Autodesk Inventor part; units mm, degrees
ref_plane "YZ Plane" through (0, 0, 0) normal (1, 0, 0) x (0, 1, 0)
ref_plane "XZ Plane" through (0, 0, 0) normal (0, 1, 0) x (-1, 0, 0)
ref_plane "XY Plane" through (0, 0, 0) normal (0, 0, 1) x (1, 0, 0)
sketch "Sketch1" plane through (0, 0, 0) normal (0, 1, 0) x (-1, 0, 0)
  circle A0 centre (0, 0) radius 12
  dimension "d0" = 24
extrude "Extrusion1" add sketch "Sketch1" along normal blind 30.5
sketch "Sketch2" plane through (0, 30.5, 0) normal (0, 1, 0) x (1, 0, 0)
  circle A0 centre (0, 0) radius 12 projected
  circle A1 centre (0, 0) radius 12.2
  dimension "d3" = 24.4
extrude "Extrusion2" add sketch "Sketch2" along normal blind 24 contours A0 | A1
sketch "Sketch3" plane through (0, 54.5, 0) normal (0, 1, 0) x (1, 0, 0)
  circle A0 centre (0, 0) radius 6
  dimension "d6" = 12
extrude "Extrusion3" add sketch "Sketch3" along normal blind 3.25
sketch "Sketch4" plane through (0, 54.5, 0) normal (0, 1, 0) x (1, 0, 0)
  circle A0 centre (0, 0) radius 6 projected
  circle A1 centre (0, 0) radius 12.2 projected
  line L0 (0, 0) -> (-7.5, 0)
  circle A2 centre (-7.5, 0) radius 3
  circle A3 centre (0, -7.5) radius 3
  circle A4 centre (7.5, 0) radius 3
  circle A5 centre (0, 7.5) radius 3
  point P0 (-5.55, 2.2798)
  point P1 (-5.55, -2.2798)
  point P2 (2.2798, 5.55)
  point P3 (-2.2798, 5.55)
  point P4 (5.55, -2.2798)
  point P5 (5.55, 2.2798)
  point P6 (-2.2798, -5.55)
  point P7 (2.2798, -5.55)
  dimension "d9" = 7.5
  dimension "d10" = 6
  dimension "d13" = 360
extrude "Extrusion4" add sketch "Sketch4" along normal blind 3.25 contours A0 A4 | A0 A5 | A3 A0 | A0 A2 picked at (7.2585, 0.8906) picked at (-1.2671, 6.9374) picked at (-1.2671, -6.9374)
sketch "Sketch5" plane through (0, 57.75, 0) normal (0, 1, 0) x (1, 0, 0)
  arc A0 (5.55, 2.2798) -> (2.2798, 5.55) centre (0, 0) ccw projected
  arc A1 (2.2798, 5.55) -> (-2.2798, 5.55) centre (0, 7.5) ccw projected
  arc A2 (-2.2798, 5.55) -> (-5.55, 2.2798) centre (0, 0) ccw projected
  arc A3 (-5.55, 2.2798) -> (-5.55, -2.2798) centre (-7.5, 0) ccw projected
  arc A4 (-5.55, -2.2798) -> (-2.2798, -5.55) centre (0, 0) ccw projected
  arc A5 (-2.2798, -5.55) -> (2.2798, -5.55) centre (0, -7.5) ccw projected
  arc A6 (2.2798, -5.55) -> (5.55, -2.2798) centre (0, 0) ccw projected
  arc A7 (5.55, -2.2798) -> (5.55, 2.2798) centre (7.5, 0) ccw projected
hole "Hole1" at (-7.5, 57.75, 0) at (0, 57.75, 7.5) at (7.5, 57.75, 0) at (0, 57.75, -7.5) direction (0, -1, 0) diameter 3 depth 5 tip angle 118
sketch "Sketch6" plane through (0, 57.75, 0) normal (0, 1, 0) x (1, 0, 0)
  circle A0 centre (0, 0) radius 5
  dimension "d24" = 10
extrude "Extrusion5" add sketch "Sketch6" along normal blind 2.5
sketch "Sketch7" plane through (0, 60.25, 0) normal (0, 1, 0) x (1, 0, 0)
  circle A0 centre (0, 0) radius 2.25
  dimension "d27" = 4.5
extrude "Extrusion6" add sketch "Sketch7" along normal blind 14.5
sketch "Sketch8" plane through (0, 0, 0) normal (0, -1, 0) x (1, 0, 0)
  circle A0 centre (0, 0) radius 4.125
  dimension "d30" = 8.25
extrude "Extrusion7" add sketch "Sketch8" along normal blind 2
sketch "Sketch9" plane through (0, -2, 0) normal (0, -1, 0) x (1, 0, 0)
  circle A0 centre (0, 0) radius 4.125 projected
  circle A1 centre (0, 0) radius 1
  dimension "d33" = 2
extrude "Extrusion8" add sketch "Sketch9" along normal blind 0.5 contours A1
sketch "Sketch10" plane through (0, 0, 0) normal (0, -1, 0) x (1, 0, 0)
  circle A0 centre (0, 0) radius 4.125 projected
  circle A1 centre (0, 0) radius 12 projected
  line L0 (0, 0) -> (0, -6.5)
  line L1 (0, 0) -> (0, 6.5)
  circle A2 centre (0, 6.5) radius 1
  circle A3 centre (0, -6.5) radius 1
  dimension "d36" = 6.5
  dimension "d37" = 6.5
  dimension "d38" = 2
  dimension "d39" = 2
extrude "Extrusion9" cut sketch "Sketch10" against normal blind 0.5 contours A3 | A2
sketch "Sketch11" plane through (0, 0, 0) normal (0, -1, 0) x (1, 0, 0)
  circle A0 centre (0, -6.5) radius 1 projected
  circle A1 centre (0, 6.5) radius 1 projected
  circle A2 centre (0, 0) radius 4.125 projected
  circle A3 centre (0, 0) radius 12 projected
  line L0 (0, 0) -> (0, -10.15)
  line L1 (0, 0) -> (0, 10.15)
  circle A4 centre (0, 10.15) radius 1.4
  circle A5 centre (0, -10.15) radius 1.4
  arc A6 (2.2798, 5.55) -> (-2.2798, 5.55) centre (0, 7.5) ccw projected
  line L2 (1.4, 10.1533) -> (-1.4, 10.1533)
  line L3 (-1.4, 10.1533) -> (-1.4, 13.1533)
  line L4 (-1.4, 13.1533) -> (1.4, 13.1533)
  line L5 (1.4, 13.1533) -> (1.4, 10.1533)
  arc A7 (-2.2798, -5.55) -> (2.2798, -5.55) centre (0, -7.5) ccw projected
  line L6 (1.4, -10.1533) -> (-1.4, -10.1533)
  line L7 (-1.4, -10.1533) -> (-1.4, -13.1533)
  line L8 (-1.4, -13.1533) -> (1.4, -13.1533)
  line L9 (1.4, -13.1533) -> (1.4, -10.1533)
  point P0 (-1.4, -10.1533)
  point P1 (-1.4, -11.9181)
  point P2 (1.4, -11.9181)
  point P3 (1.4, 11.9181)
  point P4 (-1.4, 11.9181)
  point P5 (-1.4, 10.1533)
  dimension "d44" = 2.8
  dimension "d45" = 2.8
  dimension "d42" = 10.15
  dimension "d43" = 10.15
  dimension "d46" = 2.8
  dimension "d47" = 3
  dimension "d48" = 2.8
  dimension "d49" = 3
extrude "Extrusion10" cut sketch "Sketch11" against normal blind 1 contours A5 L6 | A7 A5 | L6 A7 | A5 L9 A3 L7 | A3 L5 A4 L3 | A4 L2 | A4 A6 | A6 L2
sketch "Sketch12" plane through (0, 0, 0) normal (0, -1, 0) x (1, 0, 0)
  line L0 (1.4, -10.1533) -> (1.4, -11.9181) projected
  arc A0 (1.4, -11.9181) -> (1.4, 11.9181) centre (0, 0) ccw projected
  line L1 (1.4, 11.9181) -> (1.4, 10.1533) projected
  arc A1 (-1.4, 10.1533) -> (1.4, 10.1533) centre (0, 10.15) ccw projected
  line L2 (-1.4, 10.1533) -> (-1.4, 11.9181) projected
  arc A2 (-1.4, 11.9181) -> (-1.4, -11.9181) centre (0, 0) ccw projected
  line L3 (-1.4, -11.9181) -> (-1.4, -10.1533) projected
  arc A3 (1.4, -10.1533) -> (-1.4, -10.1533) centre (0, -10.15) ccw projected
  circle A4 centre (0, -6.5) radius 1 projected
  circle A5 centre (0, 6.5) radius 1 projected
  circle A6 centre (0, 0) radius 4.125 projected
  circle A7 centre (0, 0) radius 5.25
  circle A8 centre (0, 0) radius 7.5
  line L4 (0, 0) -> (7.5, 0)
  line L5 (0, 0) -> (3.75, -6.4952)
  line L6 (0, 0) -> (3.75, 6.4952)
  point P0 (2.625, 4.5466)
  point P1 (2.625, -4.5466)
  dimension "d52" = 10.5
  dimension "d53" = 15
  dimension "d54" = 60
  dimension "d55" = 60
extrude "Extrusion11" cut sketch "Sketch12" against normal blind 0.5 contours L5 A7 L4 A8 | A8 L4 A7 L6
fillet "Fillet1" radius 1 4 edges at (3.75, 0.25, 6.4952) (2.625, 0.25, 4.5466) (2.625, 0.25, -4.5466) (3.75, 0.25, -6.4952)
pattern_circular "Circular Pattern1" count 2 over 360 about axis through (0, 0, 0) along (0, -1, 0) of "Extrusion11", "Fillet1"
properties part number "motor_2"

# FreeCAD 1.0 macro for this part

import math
import FreeCAD as App
import Part
import Sketcher

V = App.Vector
Q = App.Units.Quantity


def edges_at(feature, points):
    """Names of the edges that pass closest to the given points."""
    edges = feature.Shape.Edges
    near = lambda p: min(range(len(edges)), key=lambda i: edges[i].distToShape(Part.Vertex(*p))[0])
    return sorted({f"Edge{near(p) + 1}" for p in points})

doc = App.newDocument("Part")
body = doc.addObject("PartDesign::Body", "Body")

# Sketch on XZ plane
sketch1 = body.newObject("Sketcher::SketchObject", "Sketch")
sketch1.AttachmentSupport = (doc.getObject("XZ_Plane"), [""])
sketch1.MapMode = "FlatFace"
sketch1.addGeometry(Part.Circle(V(0, 0, 0), V(0, 0, 1), 12), False)
sketch1.addConstraint([
    Sketcher.Constraint("Coincident", 0, 3, -1, 1),
    Sketcher.Constraint("Diameter", 0, 24.0),
])
pad1 = body.newObject("PartDesign::Pad", "Pad")
pad1.Profile = sketch1
pad1.Length = 30.5
pad1.Reversed = True

# Sketch on XZ plane
sketch2 = body.newObject("Sketcher::SketchObject", "Sketch001")
sketch2.AttachmentSupport = (doc.getObject("XZ_Plane"), [""])
sketch2.MapMode = "FlatFace"
sketch2.AttachmentOffset = App.Placement(V(0, 0, -30.5), App.Rotation())
sketch2.addGeometry(Part.Circle(V(0, 0, 0), V(0, 0, 1), 12), False)
sketch2.addConstraint([
    Sketcher.Constraint("Coincident", 0, 3, -1, 1),
    Sketcher.Constraint("Diameter", 0, 24.4),
])
pad2 = body.newObject("PartDesign::Pad", "Pad001")
pad2.Profile = sketch2
pad2.Length = 24
pad2.Reversed = True

# Sketch on XZ plane
sketch3 = body.newObject("Sketcher::SketchObject", "Sketch002")
sketch3.AttachmentSupport = (doc.getObject("XZ_Plane"), [""])
sketch3.MapMode = "FlatFace"
sketch3.AttachmentOffset = App.Placement(V(0, 0, -54.5), App.Rotation())
sketch3.addGeometry(Part.Circle(V(0, 0, 0), V(0, 0, 1), 6), False)
sketch3.addConstraint([
    Sketcher.Constraint("Coincident", 0, 3, -1, 1),
    Sketcher.Constraint("Diameter", 0, 12.0),
])
pad3 = body.newObject("PartDesign::Pad", "Pad002")
pad3.Profile = sketch3
pad3.Length = 3.25
pad3.Reversed = True

# Sketch on XZ plane
sketch4 = body.newObject("Sketcher::SketchObject", "Sketch003")
sketch4.AttachmentSupport = (doc.getObject("XZ_Plane"), [""])
sketch4.MapMode = "FlatFace"
sketch4.AttachmentOffset = App.Placement(V(0, 0, -54.5), App.Rotation())
sketch4.addGeometry([
    Part.ArcOfCircle(Part.Circle(V(0, 0, 0), V(0, 0, 1), 6), math.radians(-22), math.radians(22)),  # 0
    Part.ArcOfCircle(Part.Circle(V(7.5, 0, 0), V(0, 0, 1), 3), math.radians(-131), math.radians(131)),  # 1
    Part.ArcOfCircle(Part.Circle(V(0, 0, 0), V(0, 0, 1), 6), math.radians(-112), math.radians(-68)),  # 2
    Part.ArcOfCircle(Part.Circle(V(0, -7.5, 0), V(0, 0, 1), 3), math.radians(139), math.radians(401)),  # 3
    Part.ArcOfCircle(Part.Circle(V(0, 7.5, 0), V(0, 0, 1), 3), math.radians(-41), math.radians(221)),  # 4
    Part.ArcOfCircle(Part.Circle(V(0, 0, 0), V(0, 0, 1), 6), math.radians(68), math.radians(112)),  # 5
    Part.ArcOfCircle(Part.Circle(V(0, 0, 0), V(0, 0, 1), 6), math.radians(158), math.radians(202)),  # 6
    Part.ArcOfCircle(Part.Circle(V(-7.5, 0, 0), V(0, 0, 1), 3), math.radians(49), math.radians(311)),  # 7
], False)
sketch4.addConstraint([
    Sketcher.Constraint("Coincident", 0, 1, 1, 1),
    Sketcher.Constraint("Coincident", 1, 2, 0, 2),
    Sketcher.Constraint("Coincident", 2, 1, 3, 1),
    Sketcher.Constraint("Coincident", 3, 2, 2, 2),
    Sketcher.Constraint("Coincident", 4, 1, 5, 1),
    Sketcher.Constraint("Coincident", 5, 2, 4, 2),
    Sketcher.Constraint("Coincident", 6, 1, 7, 1),
    Sketcher.Constraint("Coincident", 7, 2, 6, 2),
    Sketcher.Constraint("Coincident", 0, 3, -1, 1),
    Sketcher.Constraint("Coincident", 2, 3, -1, 1),
    Sketcher.Constraint("Coincident", 5, 3, -1, 1),
    Sketcher.Constraint("Coincident", 6, 3, -1, 1),
    Sketcher.Constraint("Equal", 0, 2),
    Sketcher.Constraint("Equal", 1, 3),
    Sketcher.Constraint("Equal", 3, 4),
    Sketcher.Constraint("Equal", 2, 5),
    Sketcher.Constraint("Equal", 5, 6),
    Sketcher.Constraint("Equal", 4, 7),
    Sketcher.Constraint("Symmetric", 3, 3, 4, 3, -1, 1),
    Sketcher.Constraint("Symmetric", 1, 3, 7, 3, -1, 1),
    Sketcher.Constraint("PointOnObject", 1, 3, -1),
    Sketcher.Constraint("PointOnObject", 3, 3, -2),
    Sketcher.Constraint("Radius", 0, 6.0),
    Sketcher.Constraint("Radius", 1, 3.0),
    Sketcher.Constraint("DistanceX", -1, 1, 1, 3, 7.5),
    Sketcher.Constraint("DistanceY", 3, 3, -1, 1, 7.5),
])
pad4 = body.newObject("PartDesign::Pad", "Pad003")
pad4.Profile = sketch4
pad4.Length = 3.25
pad4.Reversed = True

# Sketch on XZ plane
sketch5 = body.newObject("Sketcher::SketchObject", "Sketch004")
sketch5.AttachmentSupport = (doc.getObject("XZ_Plane"), [""])
sketch5.MapMode = "FlatFace"
sketch5.AttachmentOffset = App.Placement(V(0, 0, -57.75), App.Rotation())
sketch5.addGeometry([
    Part.Circle(V(-7.5, 0, 0), V(0, 0, 1), 1.5),
    Part.Circle(V(0, 7.5, 0), V(0, 0, 1), 1.5),
    Part.Circle(V(7.5, 0, 0), V(0, 0, 1), 1.5),
    Part.Circle(V(0, -7.5, 0), V(0, 0, 1), 1.5),
], False)
sketch5.addConstraint([
    Sketcher.Constraint("Equal", 0, 1),
    Sketcher.Constraint("Equal", 1, 2),
    Sketcher.Constraint("Equal", 2, 3),
    Sketcher.Constraint("Symmetric", 0, 3, 2, 3, -1, 1),
    Sketcher.Constraint("Symmetric", 1, 3, 3, 3, -1, 1),
    Sketcher.Constraint("PointOnObject", 0, 3, -1),
    Sketcher.Constraint("PointOnObject", 1, 3, -2),
    Sketcher.Constraint("Diameter", 0, 3.0),
    Sketcher.Constraint("DistanceX", 0, 3, 2, 3, 15.0),
    Sketcher.Constraint("DistanceY", 3, 3, 1, 3, 15.0),
])
doc.recompute()
hole = body.newObject("PartDesign::Hole", "Hole")
hole.Profile = sketch5
hole.ThreadType = "None"
hole.Diameter = 3
hole.DepthType = "Dimension"
hole.Depth = 5
hole.DrillPoint = "Angled"
hole.DrillPointAngle = 118
hole.Reversed = True

# Sketch on XZ plane
sketch6 = body.newObject("Sketcher::SketchObject", "Sketch005")
sketch6.AttachmentSupport = (doc.getObject("XZ_Plane"), [""])
sketch6.MapMode = "FlatFace"
sketch6.AttachmentOffset = App.Placement(V(0, 0, -57.75), App.Rotation())
sketch6.addGeometry(Part.Circle(V(0, 0, 0), V(0, 0, 1), 5), False)
sketch6.addConstraint([
    Sketcher.Constraint("Coincident", 0, 3, -1, 1),
    Sketcher.Constraint("Diameter", 0, 10.0),
])
pad5 = body.newObject("PartDesign::Pad", "Pad004")
pad5.Profile = sketch6
pad5.Length = 2.5
pad5.Reversed = True

# Sketch on XZ plane
sketch7 = body.newObject("Sketcher::SketchObject", "Sketch006")
sketch7.AttachmentSupport = (doc.getObject("XZ_Plane"), [""])
sketch7.MapMode = "FlatFace"
sketch7.AttachmentOffset = App.Placement(V(0, 0, -60.25), App.Rotation())
sketch7.addGeometry(Part.Circle(V(0, 0, 0), V(0, 0, 1), 2.2), False)
sketch7.addConstraint([
    Sketcher.Constraint("Coincident", 0, 3, -1, 1),
    Sketcher.Constraint("Diameter", 0, 4.5),
])
pad6 = body.newObject("PartDesign::Pad", "Pad005")
pad6.Profile = sketch7
pad6.Length = 14.5
pad6.Reversed = True

# Sketch on XZ plane
sketch8 = body.newObject("Sketcher::SketchObject", "Sketch007")
sketch8.AttachmentSupport = (doc.getObject("XZ_Plane"), [""])
sketch8.MapMode = "FlatFace"
sketch8.addGeometry(Part.Circle(V(0, 0, 0), V(0, 0, 1), 4.1), False)
sketch8.addConstraint([
    Sketcher.Constraint("Coincident", 0, 3, -1, 1),
    Sketcher.Constraint("Diameter", 0, 8.25),
])
pad7 = body.newObject("PartDesign::Pad", "Pad006")
pad7.Profile = sketch8
pad7.Length = 2

# Sketch on XZ plane
sketch9 = body.newObject("Sketcher::SketchObject", "Sketch008")
sketch9.AttachmentSupport = (doc.getObject("XZ_Plane"), [""])
sketch9.MapMode = "FlatFace"
sketch9.AttachmentOffset = App.Placement(V(0, 0, 2), App.Rotation())
sketch9.addGeometry(Part.Circle(V(0, 0, 0), V(0, 0, 1), 1), False)
sketch9.addConstraint([
    Sketcher.Constraint("Coincident", 0, 3, -1, 1),
    Sketcher.Constraint("Diameter", 0, 2.0),
])
pad8 = body.newObject("PartDesign::Pad", "Pad007")
pad8.Profile = sketch9
pad8.Length = 0.5

# Sketch on XZ plane
sketch10 = body.newObject("Sketcher::SketchObject", "Sketch009")
sketch10.AttachmentSupport = (doc.getObject("XZ_Plane"), [""])
sketch10.MapMode = "FlatFace"
sketch10.addGeometry([
    Part.Circle(V(0, -6.5, 0), V(0, 0, 1), 1),
    Part.Circle(V(0, 6.5, 0), V(0, 0, 1), 1),
], False)
sketch10.addConstraint([
    Sketcher.Constraint("Equal", 0, 1),
    Sketcher.Constraint("Symmetric", 0, 3, 1, 3, -1, 1),
    Sketcher.Constraint("PointOnObject", 0, 3, -2),
    Sketcher.Constraint("Diameter", 0, 2.0),
    Sketcher.Constraint("DistanceY", 0, 3, -1, 1, 6.5),
])
pocket1 = body.newObject("PartDesign::Pocket", "Pocket")
pocket1.Profile = sketch10
pocket1.Length = 0.5

# Sketch on XZ plane
sketch11 = body.newObject("Sketcher::SketchObject", "Sketch010")
sketch11.AttachmentSupport = (doc.getObject("XZ_Plane"), [""])
sketch11.MapMode = "FlatFace"
sketch11.addGeometry([
    Part.LineSegment(V(-1.4, -10.2, 0), V(-1.4, -11.9, 0)),  # 0
    Part.ArcOfCircle(Part.Circle(V(0, 0, 0), V(0, 0, 1), 12), math.radians(-96.7), math.radians(-83.3)),  # 1
    Part.LineSegment(V(1.4, -11.9, 0), V(1.4, -10.2, 0)),  # 2
    Part.ArcOfCircle(Part.Circle(V(0, -10.2, 0), V(0, 0, 1), 1.4), math.radians(0), math.radians(180)),  # 3
    Part.ArcOfCircle(Part.Circle(V(0, 0, 0), V(0, 0, 1), 12), math.radians(83.3), math.radians(96.7)),  # 4
    Part.LineSegment(V(-1.4, 11.9, 0), V(-1.4, 10.2, 0)),  # 5
    Part.ArcOfCircle(Part.Circle(V(0, 10.2, 0), V(0, 0, 1), 1.4), math.radians(180), math.radians(360)),  # 6
    Part.LineSegment(V(1.4, 10.2, 0), V(1.4, 11.9, 0)),  # 7
], False)
sketch11.addConstraint([
    Sketcher.Constraint("Coincident", 0, 2, 1, 1),
    Sketcher.Constraint("Coincident", 1, 2, 2, 1),
    Sketcher.Constraint("Coincident", 2, 2, 3, 1),
    Sketcher.Constraint("Coincident", 3, 2, 0, 1),
    Sketcher.Constraint("Coincident", 4, 2, 5, 1),
    Sketcher.Constraint("Coincident", 5, 2, 6, 1),
    Sketcher.Constraint("Coincident", 6, 2, 7, 1),
    Sketcher.Constraint("Coincident", 7, 2, 4, 1),
    Sketcher.Constraint("Vertical", 0),
    Sketcher.Constraint("Vertical", 2),
    Sketcher.Constraint("Vertical", 5),
    Sketcher.Constraint("Vertical", 7),
    Sketcher.Constraint("Coincident", 1, 3, -1, 1),
    Sketcher.Constraint("Coincident", 4, 3, -1, 1),
    Sketcher.Constraint("Equal", 1, 4),
    Sketcher.Constraint("Equal", 3, 6),
    Sketcher.Constraint("Symmetric", 3, 3, 6, 3, -1, 1),
    Sketcher.Constraint("Symmetric", 2, 2, 3, 2, -2),
    Sketcher.Constraint("Horizontal", 5, 2, 6, 2),
    Sketcher.Constraint("Equal", 2, 5),
    Sketcher.Constraint("Radius", 3, 1.4),
    Sketcher.Constraint("Radius", 1, 12.0),
    Sketcher.Constraint("DistanceY", 3, 3, -1, 1, 10.15),
    Sketcher.Constraint("DistanceY", 0, 2, 0, 1, 1.7648),
])
pocket2 = body.newObject("PartDesign::Pocket", "Pocket001")
pocket2.Profile = sketch11
pocket2.Length = 1

# Sketch on XZ plane
sketch12 = body.newObject("Sketcher::SketchObject", "Sketch011")
sketch12.AttachmentSupport = (doc.getObject("XZ_Plane"), [""])
sketch12.MapMode = "FlatFace"
sketch12.addGeometry([
    Part.LineSegment(V(2.6, -4.5, 0), V(3.8, -6.5, 0)),
    Part.ArcOfCircle(Part.Circle(V(0, 0, 0), V(0, 0, 1), 7.5), math.radians(-60), math.radians(60)),
    Part.LineSegment(V(3.8, 6.5, 0), V(2.6, 4.5, 0)),
    Part.ArcOfCircle(Part.Circle(V(0, 0, 0), V(0, 0, 1), 5.2), math.radians(-60), math.radians(60)),
], False)
sketch12.addConstraint([
    Sketcher.Constraint("Coincident", 0, 2, 1, 1),
    Sketcher.Constraint("Coincident", 1, 2, 2, 1),
    Sketcher.Constraint("Coincident", 2, 2, 3, 2),
    Sketcher.Constraint("Coincident", 3, 1, 0, 1),
    Sketcher.Constraint("Coincident", 1, 3, -1, 1),
    Sketcher.Constraint("Coincident", 3, 3, -1, 1),
    Sketcher.Constraint("Vertical", 0, 2, 1, 2),
    Sketcher.Constraint("Vertical", 2, 2, 3, 1),
    Sketcher.Constraint("Radius", 1, 7.5),
    Sketcher.Constraint("Angle", 0, Q("-60 deg")),
    Sketcher.Constraint("Radius", 3, 5.25),
    Sketcher.Constraint("DistanceX", -1, 1, 0, 2, 3.75),
])
pocket3 = body.newObject("PartDesign::Pocket", "Pocket002")
pocket3.Profile = sketch12
pocket3.Length = 0.5
doc.recompute()

fillet = body.newObject("PartDesign::Fillet", "Fillet")
fillet.Base = (pocket3, edges_at(pocket3, [
    (3.75, 0.25, 6.495),
    (2.625, 0.25, 4.547),
    (2.625, 0.25, -4.547),
    (3.75, 0.25, -6.495),
]))
fillet.Radius = 1
doc.recompute()

polarpattern = body.newObject("PartDesign::PolarPattern", "PolarPattern")
polarpattern.Originals = [pocket3, fillet]
polarpattern.Axis = (doc.getObject("Y_Axis"), [""])
polarpattern.Angle = 360
polarpattern.Occurrences = 2
body.Tip = polarpattern

doc.recompute()
